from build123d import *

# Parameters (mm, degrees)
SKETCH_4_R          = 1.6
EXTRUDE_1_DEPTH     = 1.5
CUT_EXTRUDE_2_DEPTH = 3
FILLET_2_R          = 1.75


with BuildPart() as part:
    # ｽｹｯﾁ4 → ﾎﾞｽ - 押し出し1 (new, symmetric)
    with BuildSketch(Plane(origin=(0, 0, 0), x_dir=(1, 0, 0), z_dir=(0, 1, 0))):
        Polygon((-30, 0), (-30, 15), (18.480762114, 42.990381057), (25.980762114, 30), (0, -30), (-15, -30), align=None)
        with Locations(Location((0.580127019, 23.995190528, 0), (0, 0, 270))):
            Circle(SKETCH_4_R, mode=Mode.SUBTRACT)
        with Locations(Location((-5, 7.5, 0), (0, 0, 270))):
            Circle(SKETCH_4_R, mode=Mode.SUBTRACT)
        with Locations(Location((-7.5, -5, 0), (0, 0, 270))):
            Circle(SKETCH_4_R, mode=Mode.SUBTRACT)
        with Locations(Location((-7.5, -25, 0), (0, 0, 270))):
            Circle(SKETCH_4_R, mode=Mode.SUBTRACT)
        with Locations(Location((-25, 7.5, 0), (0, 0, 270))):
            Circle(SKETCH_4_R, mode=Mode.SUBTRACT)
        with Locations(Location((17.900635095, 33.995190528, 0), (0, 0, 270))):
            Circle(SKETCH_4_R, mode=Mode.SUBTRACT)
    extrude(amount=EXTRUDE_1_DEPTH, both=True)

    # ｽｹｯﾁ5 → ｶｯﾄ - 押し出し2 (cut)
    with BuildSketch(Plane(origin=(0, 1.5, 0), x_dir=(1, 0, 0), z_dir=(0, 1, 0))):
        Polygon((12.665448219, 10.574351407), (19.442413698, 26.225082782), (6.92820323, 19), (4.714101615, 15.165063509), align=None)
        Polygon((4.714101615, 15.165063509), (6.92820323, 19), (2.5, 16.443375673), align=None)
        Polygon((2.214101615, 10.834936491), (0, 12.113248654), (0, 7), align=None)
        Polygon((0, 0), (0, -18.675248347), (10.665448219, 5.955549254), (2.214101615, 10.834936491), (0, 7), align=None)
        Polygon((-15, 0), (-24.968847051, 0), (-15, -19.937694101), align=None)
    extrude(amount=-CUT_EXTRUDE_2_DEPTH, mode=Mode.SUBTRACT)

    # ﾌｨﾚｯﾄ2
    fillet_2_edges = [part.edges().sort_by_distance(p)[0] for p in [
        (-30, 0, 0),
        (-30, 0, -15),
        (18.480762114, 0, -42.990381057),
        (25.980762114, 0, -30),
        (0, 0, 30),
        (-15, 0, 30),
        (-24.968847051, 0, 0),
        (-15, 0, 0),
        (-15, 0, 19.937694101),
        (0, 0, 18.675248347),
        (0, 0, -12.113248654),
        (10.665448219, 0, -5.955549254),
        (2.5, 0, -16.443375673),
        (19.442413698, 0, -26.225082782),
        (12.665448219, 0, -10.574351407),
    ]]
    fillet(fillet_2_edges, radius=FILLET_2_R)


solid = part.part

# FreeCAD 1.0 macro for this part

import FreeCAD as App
import Part
import Sketcher
from FreeCAD import Vector
Q = App.Units.Quantity


def edges_at(feature, points):
    """Names of the edges that pass closest to the given points."""
    edges = feature.Shape.Edges
    near = lambda p: min(range(len(edges)), key=lambda i: edges[i].distToShape(Part.Vertex(*p))[0])
    return sorted({f"Edge{near(p) + 1}" for p in points})

doc = App.newDocument("Part")
body = doc.addObject("PartDesign::Body", "Body")

# Sketch on XZ plane
sketch1 = doc.addObject("Sketcher::SketchObject", "Sketch")
body.addObject(sketch1)
sketch1.AttachmentSupport = (doc.XZ_Plane, [""])
sketch1.MapMode = "FlatFace"
sketch1.addGeometry([
    Part.LineSegment(Vector(-30, -15, 0), Vector(-30, 0, 0)),  # 0
    Part.LineSegment(Vector(-30, 0, 0), Vector(-15, 30, 0)),  # 1
    Part.LineSegment(Vector(-15, 30, 0), Vector(0, 30, 0)),  # 2
    Part.LineSegment(Vector(0, 30, 0), Vector(25.980762, -30, 0)),  # 3
    Part.LineSegment(Vector(25.980762, -30, 0), Vector(18.480762, -42.990381, 0)),  # 4
    Part.LineSegment(Vector(18.480762, -42.990381, 0), Vector(-30, -15, 0)),  # 5
    Part.Circle(Vector(-7.5, 25, 0), Vector(0, 0, 1), 1.6),  # 6
    Part.Circle(Vector(-7.5, 5, 0), Vector(0, 0, 1), 1.6),  # 7
    Part.Circle(Vector(17.900635, -33.995191, 0), Vector(0, 0, 1), 1.6),  # 8
    Part.Circle(Vector(0.580127, -23.995191, 0), Vector(0, 0, 1), 1.6),  # 9
    Part.Circle(Vector(-5, -7.5, 0), Vector(0, 0, 1), 1.6),  # 10
    Part.Circle(Vector(-25, -7.5, 0), Vector(0, 0, 1), 1.6),  # 11
], False)
sketch1.addConstraint([
    Sketcher.Constraint("Coincident", 0, 2, 1, 1),
    Sketcher.Constraint("Coincident", 1, 2, 2, 1),
    Sketcher.Constraint("Coincident", 2, 2, 3, 1),
    Sketcher.Constraint("Coincident", 3, 2, 4, 1),
    Sketcher.Constraint("Coincident", 4, 2, 5, 1),
    Sketcher.Constraint("Coincident", 5, 2, 0, 1),
    Sketcher.Constraint("Vertical", 0),
    Sketcher.Constraint("Horizontal", 2),
    Sketcher.Constraint("Equal", 6, 7),
    Sketcher.Constraint("Equal", 7, 8),
    Sketcher.Constraint("Equal", 8, 9),
    Sketcher.Constraint("Equal", 9, 10),
    Sketcher.Constraint("Equal", 10, 11),
    Sketcher.Constraint("PointOnObject", 0, 2, -1),
    Sketcher.Constraint("PointOnObject", 2, 2, -2),
    Sketcher.Constraint("Perpendicular", 4, 5),
    Sketcher.Constraint("Horizontal", 10, 3, 11, 3),
    Sketcher.Constraint("Vertical", 6, 3, 7, 3),
    Sketcher.Constraint("Equal", 2, 0),
    Sketcher.Constraint("Diameter", 6, 3.2),
    Sketcher.Constraint("DistanceX", 2, 1, 2, 2, 15.0),
    Sketcher.Constraint("Angle", 4, Q("-120 deg")),
    Sketcher.Constraint("Distance", 4, 15.0),
    Sketcher.Constraint("DistanceY", -1, 1, 6, 3, 25.0),
    Sketcher.Constraint("DistanceY", -1, 1, 7, 3, 5.0),
    Sketcher.Constraint("DistanceX", 10, 3, -1, 1, 5.0),
    Sketcher.Constraint("DistanceX", 11, 3, -1, 1, 25.0),
    Sketcher.Constraint("DistanceX", 0, 2, -1, 1, 30.0),
    Sketcher.Constraint("DistanceY", -1, 1, 1, 2, 30.0),
    Sketcher.Constraint("DistanceY", 3, 2, -1, 1, 30.0),
    Sketcher.Constraint("DistanceY", 8, 3, 9, 3, 10.0),
    Sketcher.Constraint("DistanceX", 6, 3, -1, 1, 7.5),
    Sketcher.Constraint("DistanceY", 10, 3, -1, 1, 7.5),
    Sketcher.Constraint("DistanceY", 8, 3, -1, 1, 33.995191),
    Sketcher.Constraint("DistanceX", 9, 3, 8, 3, 17.320508),
    Sketcher.Constraint("DistanceX", -1, 1, 8, 3, 17.900635),
])
pad1 = doc.addObject("PartDesign::Pad", "Pad")
body.addObject(pad1)
pad1.Profile = sketch1
pad1.Length = 3
pad1.Midplane = True

# Sketch on XZ plane
sketch2 = doc.addObject("Sketcher::SketchObject", "Sketch001")
body.addObject(sketch2)
sketch2.AttachmentSupport = (doc.XZ_Plane, [""])
sketch2.MapMode = "FlatFace"
sketch2.AttachmentOffset = App.Placement(Vector(0, 0, -1.5), App.Rotation())
sketch2.addGeometry([
    Part.LineSegment(Vector(12.665448, -10.574351, 0), Vector(19.442414, -26.225083, 0)),  # 0
    Part.LineSegment(Vector(19.442414, -26.225083, 0), Vector(6.928203, -19, 0)),  # 1
    Part.LineSegment(Vector(6.928203, -19, 0), Vector(2.5, -16.443376, 0)),  # 2
    Part.LineSegment(Vector(2.5, -16.443376, 0), Vector(4.714102, -15.165064, 0)),  # 3
    Part.LineSegment(Vector(4.714102, -15.165064, 0), Vector(12.665448, -10.574351, 0)),  # 4
    Part.LineSegment(Vector(2.214102, -10.834936, 0), Vector(0, -12.113249, 0)),  # 5
    Part.LineSegment(Vector(0, -12.113249, 0), Vector(0, 18.675248, 0)),  # 6
    Part.LineSegment(Vector(0, 18.675248, 0), Vector(10.665448, -5.955549, 0)),  # 7
    Part.LineSegment(Vector(10.665448, -5.955549, 0), Vector(2.214102, -10.834936, 0)),  # 8
    Part.LineSegment(Vector(-15, 0, 0), Vector(-24.968847, 0, 0)),  # 9
    Part.LineSegment(Vector(-24.968847, 0, 0), Vector(-15, 19.937694, 0)),  # 10
    Part.LineSegment(Vector(-15, 19.937694, 0), Vector(-15, 0, 0)),  # 11
], False)
sketch2.addConstraint([
    Sketcher.Constraint("Coincident", 0, 2, 1, 1),
    Sketcher.Constraint("Coincident", 1, 2, 2, 1),
    Sketcher.Constraint("Coincident", 2, 2, 3, 1),
    Sketcher.Constraint("Coincident", 3, 2, 4, 1),
    Sketcher.Constraint("Coincident", 4, 2, 0, 1),
    Sketcher.Constraint("Coincident", 5, 2, 6, 1),
    Sketcher.Constraint("Coincident", 6, 2, 7, 1),
    Sketcher.Constraint("Coincident", 7, 2, 8, 1),
    Sketcher.Constraint("Coincident", 8, 2, 5, 1),
    Sketcher.Constraint("Coincident", 9, 2, 10, 1),
    Sketcher.Constraint("Coincident", 10, 2, 11, 1),
    Sketcher.Constraint("Coincident", 11, 2, 9, 1),
    Sketcher.Constraint("Vertical", 6),
    Sketcher.Constraint("Horizontal", 9),
    Sketcher.Constraint("Vertical", 11),
    Sketcher.Constraint("PointOnObject", 5, 2, -2),
    Sketcher.Constraint("PointOnObject", 9, 2, -1),
    Sketcher.Constraint("Parallel", 1, 2),
    Sketcher.Constraint("Parallel", 3, 4),
    Sketcher.Constraint("Parallel", 4, 5),
    Sketcher.Constraint("Parallel", 0, 7),
    Sketcher.Constraint("Parallel", 5, 8),
    Sketcher.Constraint("Equal", 3, 5),
    Sketcher.Constraint("Angle", 1, Q("150 deg")),
    Sketcher.Constraint("Angle", 3, Q("30 deg")),
    Sketcher.Constraint("DistanceY", 1, 2, -1, 1, 19.0),
    Sketcher.Constraint("DistanceX", 10, 2, -1, 1, 15.0),
    Sketcher.Constraint("DistanceX", 7, 2, 4, 2, 2.0),
    Sketcher.Constraint("DistanceX", -1, 1, 2, 2, 2.5),
    Sketcher.Constraint("DistanceX", -1, 1, 3, 2, 4.714102),
    Sketcher.Constraint("DistanceX", 3, 2, 1, 2, 2.214102),
    Sketcher.Constraint("DistanceY", 4, 2, 6, 2, 29.2496),
    Sketcher.Constraint("DistanceY", 5, 2, 7, 2, 6.157699),
    Sketcher.Constraint("Distance", 0, 17.054989),
    Sketcher.Constraint("Distance", 10, 22.29102),
    Sketcher.Constraint("DistanceX", 9, 2, 9, 1, 9.968847),
])
pocket1 = doc.addObject("PartDesign::Pocket", "Pocket")
body.addObject(pocket1)
pocket1.Profile = sketch2
pocket1.Length = 3
pocket1.Reversed = True
doc.recompute()

fillet = doc.addObject("PartDesign::Fillet", "Fillet")
body.addObject(fillet)
fillet.Base = (pocket1, edges_at(pocket1, [
    (-30, 0, 0),
    (-30, 0, -15),
    (18.481, 0, -42.99),
    (25.981, 0, -30),
    (0, 0, 30),
    (-15, 0, 30),
    (-24.969, 0, 0),
    (-15, 0, 0),
    (-15, 0, 19.938),
    (0, 0, 18.675),
    (0, 0, -12.113),
    (10.665, 0, -5.956),
    (2.5, 0, -16.443),
    (19.442, 0, -26.225),
    (12.665, 0, -10.574),
]))
fillet.Radius = 1.75

doc.recompute()
